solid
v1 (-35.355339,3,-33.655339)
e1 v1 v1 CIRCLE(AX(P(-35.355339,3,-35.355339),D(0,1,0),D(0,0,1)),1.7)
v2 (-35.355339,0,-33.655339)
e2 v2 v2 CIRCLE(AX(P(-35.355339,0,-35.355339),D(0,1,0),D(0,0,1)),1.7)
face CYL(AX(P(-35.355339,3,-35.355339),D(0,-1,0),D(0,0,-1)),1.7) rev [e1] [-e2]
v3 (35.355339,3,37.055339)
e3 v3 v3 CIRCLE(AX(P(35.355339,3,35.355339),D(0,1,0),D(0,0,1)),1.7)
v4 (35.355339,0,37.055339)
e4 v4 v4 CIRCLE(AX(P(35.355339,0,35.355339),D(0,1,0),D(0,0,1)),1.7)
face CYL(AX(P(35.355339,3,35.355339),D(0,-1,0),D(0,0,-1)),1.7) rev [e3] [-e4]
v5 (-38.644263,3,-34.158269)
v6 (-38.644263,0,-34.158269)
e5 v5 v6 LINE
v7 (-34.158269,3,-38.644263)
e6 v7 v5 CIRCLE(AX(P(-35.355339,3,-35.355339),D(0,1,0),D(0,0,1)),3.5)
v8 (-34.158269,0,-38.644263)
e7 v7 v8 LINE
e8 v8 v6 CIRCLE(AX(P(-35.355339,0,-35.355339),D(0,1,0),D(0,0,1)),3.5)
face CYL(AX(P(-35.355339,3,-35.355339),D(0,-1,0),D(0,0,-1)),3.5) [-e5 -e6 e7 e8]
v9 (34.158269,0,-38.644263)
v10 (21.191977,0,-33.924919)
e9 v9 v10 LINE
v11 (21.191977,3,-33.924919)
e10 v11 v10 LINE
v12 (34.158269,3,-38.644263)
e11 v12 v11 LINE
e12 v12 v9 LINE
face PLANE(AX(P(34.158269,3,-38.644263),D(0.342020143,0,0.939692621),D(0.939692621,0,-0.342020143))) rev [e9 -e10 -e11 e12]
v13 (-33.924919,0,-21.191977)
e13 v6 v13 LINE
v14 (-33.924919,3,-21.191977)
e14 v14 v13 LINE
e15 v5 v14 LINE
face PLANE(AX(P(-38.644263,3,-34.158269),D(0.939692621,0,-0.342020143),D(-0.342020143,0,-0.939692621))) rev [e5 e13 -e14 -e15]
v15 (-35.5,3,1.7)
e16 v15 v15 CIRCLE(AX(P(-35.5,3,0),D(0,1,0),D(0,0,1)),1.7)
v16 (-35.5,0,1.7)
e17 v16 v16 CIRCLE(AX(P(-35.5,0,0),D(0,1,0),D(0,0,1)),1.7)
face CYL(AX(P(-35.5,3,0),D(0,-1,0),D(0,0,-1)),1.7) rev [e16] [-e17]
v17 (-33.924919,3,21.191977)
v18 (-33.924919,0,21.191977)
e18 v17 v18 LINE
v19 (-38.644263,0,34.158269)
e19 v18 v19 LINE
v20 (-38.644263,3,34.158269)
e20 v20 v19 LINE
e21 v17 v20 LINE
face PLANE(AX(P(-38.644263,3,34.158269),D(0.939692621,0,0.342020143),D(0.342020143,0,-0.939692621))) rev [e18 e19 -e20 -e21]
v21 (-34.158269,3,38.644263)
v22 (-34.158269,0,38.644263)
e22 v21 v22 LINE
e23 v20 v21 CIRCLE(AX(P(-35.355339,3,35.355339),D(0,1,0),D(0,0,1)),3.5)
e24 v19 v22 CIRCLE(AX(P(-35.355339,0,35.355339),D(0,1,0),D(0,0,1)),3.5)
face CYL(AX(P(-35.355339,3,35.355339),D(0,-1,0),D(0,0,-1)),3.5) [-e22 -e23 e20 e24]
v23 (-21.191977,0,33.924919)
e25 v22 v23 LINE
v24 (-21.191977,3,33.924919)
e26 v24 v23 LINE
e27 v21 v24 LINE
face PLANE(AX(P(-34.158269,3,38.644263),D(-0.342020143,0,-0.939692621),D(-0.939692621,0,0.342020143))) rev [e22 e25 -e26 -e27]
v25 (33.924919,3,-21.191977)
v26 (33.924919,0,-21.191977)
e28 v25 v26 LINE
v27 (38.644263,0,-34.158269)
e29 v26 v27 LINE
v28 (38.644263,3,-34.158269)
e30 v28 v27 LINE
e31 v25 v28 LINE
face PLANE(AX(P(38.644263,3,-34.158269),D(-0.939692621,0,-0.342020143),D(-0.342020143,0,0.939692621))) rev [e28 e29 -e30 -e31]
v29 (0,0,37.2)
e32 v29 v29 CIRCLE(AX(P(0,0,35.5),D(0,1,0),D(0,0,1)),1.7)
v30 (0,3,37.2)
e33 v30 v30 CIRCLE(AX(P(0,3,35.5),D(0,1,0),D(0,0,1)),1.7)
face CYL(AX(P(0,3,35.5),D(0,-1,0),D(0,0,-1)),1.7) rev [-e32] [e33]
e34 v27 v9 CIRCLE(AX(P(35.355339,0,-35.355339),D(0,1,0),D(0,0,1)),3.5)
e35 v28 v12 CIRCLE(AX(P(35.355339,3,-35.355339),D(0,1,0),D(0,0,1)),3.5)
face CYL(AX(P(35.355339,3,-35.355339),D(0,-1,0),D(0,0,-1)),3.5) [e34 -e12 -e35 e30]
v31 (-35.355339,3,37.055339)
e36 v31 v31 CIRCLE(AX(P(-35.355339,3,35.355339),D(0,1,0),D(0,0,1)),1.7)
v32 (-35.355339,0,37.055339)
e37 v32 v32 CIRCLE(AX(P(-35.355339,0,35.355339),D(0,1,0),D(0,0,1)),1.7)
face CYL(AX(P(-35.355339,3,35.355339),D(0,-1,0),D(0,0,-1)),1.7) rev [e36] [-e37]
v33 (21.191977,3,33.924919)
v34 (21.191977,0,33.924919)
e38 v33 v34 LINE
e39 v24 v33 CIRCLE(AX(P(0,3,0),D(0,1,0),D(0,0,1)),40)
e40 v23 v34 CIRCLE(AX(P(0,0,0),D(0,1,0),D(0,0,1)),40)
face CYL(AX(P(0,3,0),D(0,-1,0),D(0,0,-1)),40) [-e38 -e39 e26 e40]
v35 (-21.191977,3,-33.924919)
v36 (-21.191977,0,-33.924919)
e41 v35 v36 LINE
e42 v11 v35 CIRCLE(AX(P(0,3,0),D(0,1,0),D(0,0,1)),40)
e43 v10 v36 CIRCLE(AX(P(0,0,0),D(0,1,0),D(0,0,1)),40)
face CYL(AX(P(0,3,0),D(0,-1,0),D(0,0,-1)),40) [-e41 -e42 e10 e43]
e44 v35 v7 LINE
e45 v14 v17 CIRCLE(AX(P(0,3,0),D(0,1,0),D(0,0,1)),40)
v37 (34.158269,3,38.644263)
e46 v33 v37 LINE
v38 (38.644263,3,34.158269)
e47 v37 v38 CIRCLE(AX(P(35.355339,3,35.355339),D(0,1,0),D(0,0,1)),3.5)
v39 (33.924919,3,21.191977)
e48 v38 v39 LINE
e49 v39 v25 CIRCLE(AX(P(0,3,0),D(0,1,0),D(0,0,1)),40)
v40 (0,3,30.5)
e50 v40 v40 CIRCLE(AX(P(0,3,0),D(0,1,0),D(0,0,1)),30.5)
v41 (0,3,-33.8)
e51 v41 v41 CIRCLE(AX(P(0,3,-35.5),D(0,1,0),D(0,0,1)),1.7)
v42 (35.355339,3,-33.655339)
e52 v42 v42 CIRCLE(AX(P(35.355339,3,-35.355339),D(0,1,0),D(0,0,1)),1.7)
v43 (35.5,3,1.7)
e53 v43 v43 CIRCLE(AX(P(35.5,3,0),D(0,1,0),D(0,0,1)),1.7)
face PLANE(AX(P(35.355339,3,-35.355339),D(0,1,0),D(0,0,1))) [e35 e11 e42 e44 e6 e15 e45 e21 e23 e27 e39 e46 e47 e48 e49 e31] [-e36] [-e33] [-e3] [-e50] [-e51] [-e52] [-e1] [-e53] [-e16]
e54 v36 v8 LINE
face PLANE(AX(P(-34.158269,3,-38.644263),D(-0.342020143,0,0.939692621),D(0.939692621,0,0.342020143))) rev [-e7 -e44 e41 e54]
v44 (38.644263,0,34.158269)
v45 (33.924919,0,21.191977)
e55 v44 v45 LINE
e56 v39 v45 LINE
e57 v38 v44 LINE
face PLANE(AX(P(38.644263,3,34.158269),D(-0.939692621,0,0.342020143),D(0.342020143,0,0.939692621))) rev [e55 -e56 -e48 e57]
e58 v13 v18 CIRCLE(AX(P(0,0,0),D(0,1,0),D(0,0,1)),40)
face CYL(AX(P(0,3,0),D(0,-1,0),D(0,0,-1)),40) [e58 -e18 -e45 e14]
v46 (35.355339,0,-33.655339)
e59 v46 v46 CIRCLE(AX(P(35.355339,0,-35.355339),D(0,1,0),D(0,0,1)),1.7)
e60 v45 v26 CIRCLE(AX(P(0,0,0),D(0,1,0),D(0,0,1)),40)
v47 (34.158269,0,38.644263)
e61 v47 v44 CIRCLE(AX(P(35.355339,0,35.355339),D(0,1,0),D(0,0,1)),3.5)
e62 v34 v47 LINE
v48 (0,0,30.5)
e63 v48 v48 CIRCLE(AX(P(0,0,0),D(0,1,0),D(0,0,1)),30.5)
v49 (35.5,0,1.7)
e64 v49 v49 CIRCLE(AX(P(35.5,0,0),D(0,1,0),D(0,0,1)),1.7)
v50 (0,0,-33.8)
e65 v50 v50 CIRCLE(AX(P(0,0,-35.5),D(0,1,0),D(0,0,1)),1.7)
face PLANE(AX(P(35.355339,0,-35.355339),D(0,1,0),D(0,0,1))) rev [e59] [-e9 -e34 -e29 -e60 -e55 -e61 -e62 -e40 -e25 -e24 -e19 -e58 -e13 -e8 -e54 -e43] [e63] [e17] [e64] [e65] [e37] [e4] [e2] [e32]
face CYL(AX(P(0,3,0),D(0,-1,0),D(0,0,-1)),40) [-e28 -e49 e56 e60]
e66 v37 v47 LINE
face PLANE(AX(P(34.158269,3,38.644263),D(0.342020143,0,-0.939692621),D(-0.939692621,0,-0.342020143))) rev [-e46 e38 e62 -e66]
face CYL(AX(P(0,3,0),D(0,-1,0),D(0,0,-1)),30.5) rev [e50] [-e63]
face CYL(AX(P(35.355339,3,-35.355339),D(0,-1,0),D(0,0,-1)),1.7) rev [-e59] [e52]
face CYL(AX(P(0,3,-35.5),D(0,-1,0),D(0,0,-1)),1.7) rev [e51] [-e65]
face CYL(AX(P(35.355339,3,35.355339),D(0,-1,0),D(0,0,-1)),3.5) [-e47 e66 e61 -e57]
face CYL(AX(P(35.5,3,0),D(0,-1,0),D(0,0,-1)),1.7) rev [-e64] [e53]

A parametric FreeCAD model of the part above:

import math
import FreeCAD as App
import Part
import Sketcher
Q = App.Units.Quantity

doc = App.newDocument("Part")
body = doc.addObject("PartDesign::Body", "Body")

sketch1 = body.newObject("Sketcher::SketchObject", "Sketch")
sketch1.AttachmentSupport = (doc.getObject("XZ_Plane"), [""])
sketch1.MapMode = "FlatFace"
sketch1.addGeometry([
    Part.LineSegment(App.Vector(34.2, -38.6, 0), App.Vector(21.2, -33.9, 0)),
    Part.ArcOfCircle(Part.Circle(App.Vector(0, 0, 0), App.Vector(0, 0, 1), 40), math.radians(-122), math.radians(-58)),
    Part.LineSegment(App.Vector(-21.2, -33.9, 0), App.Vector(-34.2, -38.6, 0)),
    Part.ArcOfCircle(Part.Circle(App.Vector(-35.4, -35.4, 0), App.Vector(0, 0, 1), 3.5), math.radians(160), math.radians(290)),
    Part.LineSegment(App.Vector(-38.6, -34.2, 0), App.Vector(-33.9, -21.2, 0)),
    Part.ArcOfCircle(Part.Circle(App.Vector(0, 0, 0), App.Vector(0, 0, 1), 40), math.radians(148), math.radians(212)),
    Part.LineSegment(App.Vector(-33.9, 21.2, 0), App.Vector(-38.6, 34.2, 0)),
    Part.ArcOfCircle(Part.Circle(App.Vector(-35.4, 35.4, 0), App.Vector(0, 0, 1), 3.5), math.radians(70), math.radians(200)),
    Part.LineSegment(App.Vector(-34.2, 38.6, 0), App.Vector(-21.2, 33.9, 0)),
    Part.ArcOfCircle(Part.Circle(App.Vector(0, 0, 0), App.Vector(0, 0, 1), 40), math.radians(58), math.radians(122)),
    Part.LineSegment(App.Vector(21.2, 33.9, 0), App.Vector(34.2, 38.6, 0)),
    Part.ArcOfCircle(Part.Circle(App.Vector(35.4, 35.4, 0), App.Vector(0, 0, 1), 3.5), math.radians(-20), math.radians(110)),
    Part.LineSegment(App.Vector(38.6, 34.2, 0), App.Vector(33.9, 21.2, 0)),
    Part.ArcOfCircle(Part.Circle(App.Vector(0, 0, 0), App.Vector(0, 0, 1), 40), math.radians(-32), math.radians(32)),
    Part.LineSegment(App.Vector(33.9, -21.2, 0), App.Vector(38.6, -34.2, 0)),
    Part.ArcOfCircle(Part.Circle(App.Vector(35.4, -35.4, 0), App.Vector(0, 0, 1), 3.5), math.radians(-110), math.radians(20)),
    Part.Circle(App.Vector(-35.4, 35.4, 0), App.Vector(0, 0, 1), 1.7),
    Part.Circle(App.Vector(0, 35.5, 0), App.Vector(0, 0, 1), 1.7),
    Part.Circle(App.Vector(35.4, 35.4, 0), App.Vector(0, 0, 1), 1.7),
    Part.Circle(App.Vector(-35.5, 0, 0), App.Vector(0, 0, 1), 1.7),
    Part.Circle(App.Vector(-35.4, -35.4, 0), App.Vector(0, 0, 1), 1.7),
    Part.Circle(App.Vector(0, 0, 0), App.Vector(0, 0, 1), 30.5),
    Part.Circle(App.Vector(35.5, 0, 0), App.Vector(0, 0, 1), 1.7),
    Part.Circle(App.Vector(0, -35.5, 0), App.Vector(0, 0, 1), 1.7),
    Part.Circle(App.Vector(35.4, -35.4, 0), App.Vector(0, 0, 1), 1.7),
], False)
sketch1.addConstraint([
    Sketcher.Constraint("Coincident", 0, 2, 1, 2),
    Sketcher.Constraint("Coincident", 1, 1, 2, 1),
    Sketcher.Constraint("Tangent", 2, 2, 3, 2),
    Sketcher.Constraint("Tangent", 3, 1, 4, 1),
    Sketcher.Constraint("Coincident", 4, 2, 5, 2),
    Sketcher.Constraint("Coincident", 5, 1, 6, 1),
    Sketcher.Constraint("Tangent", 6, 2, 7, 2),
    Sketcher.Constraint("Tangent", 7, 1, 8, 1),
    Sketcher.Constraint("Coincident", 8, 2, 9, 2),
    Sketcher.Constraint("Coincident", 9, 1, 10, 1),
    Sketcher.Constraint("Tangent", 10, 2, 11, 2),
    Sketcher.Constraint("Tangent", 11, 1, 12, 1),
    Sketcher.Constraint("Coincident", 12, 2, 13, 2),
    Sketcher.Constraint("Coincident", 13, 1, 14, 1),
    Sketcher.Constraint("Tangent", 14, 2, 15, 2),
    Sketcher.Constraint("Tangent", 15, 1, 0, 1),
    Sketcher.Constraint("Coincident", 1, 3, -1, 1),
    Sketcher.Constraint("Coincident", 5, 3, -1, 1),
    Sketcher.Constraint("Coincident", 9, 3, -1, 1),
    Sketcher.Constraint("Coincident", 13, 3, -1, 1),
    Sketcher.Constraint("Coincident", 21, 3, -1, 1),
    Sketcher.Constraint("Coincident", 16, 3, 7, 3),
    Sketcher.Constraint("Coincident", 18, 3, 11, 3),
    Sketcher.Constraint("Coincident", 20, 3, 3, 3),
    Sketcher.Constraint("Coincident", 24, 3, 15, 3),
    Sketcher.Constraint("Equal", 1, 5),
    Sketcher.Constraint("Equal", 3, 7),
    Sketcher.Constraint("Equal", 5, 9),
    Sketcher.Constraint("Equal", 7, 11),
    Sketcher.Constraint("Equal", 9, 13),
    Sketcher.Constraint("Equal", 11, 15),
    Sketcher.Constraint("Equal", 16, 17),
    Sketcher.Constraint("Equal", 17, 18),
    Sketcher.Constraint("Equal", 18, 19),
    Sketcher.Constraint("Equal", 19, 20),
    Sketcher.Constraint("Equal", 20, 22),
    Sketcher.Constraint("Equal", 22, 23),
    Sketcher.Constraint("Equal", 23, 24),
    Sketcher.Constraint("Symmetric", 3, 3, 11, 3, -1, 1),
    Sketcher.Constraint("Symmetric", 7, 3, 15, 3, -1, 1),
    Sketcher.Constraint("Symmetric", 19, 3, 22, 3, -1, 1),
    Sketcher.Constraint("Symmetric", 17, 3, 23, 3, -1, 1),
    Sketcher.Constraint("Symmetric", 7, 3, 11, 3, -2),
    Sketcher.Constraint("PointOnObject", 17, 3, -2),
    Sketcher.Constraint("PointOnObject", 19, 3, -1),
    Sketcher.Constraint("Perpendicular", 0, 4),
    Sketcher.Constraint("Perpendicular", 2, 6),
    Sketcher.Constraint("Perpendicular", 4, 8),
    Sketcher.Constraint("Perpendicular", 6, 10),
    Sketcher.Constraint("Perpendicular", 8, 12),
    Sketcher.Constraint("Perpendicular", 10, 14),
    Sketcher.Constraint("Horizontal", 0, 2, 1, 1),
    Sketcher.Constraint("Equal", 2, 4),
    Sketcher.Constraint("Diameter", 21, Q("61 mm")),
    Sketcher.Constraint("Radius", 1, Q("40 mm")),
    Sketcher.Constraint("Diameter", 16, Q("3.4 mm")),
    Sketcher.Constraint("Radius", 3, Q("3.5 mm")),
    Sketcher.Constraint("Angle", 0, Q("160 deg")),
    Sketcher.Constraint("DistanceY", -1, 1, 17, 3, Q("35.5 mm")),
    Sketcher.Constraint("DistanceX", 19, 3, -1, 1, Q("35.5 mm")),
    Sketcher.Constraint("Distance", 0, Q("13.79844 mm")),
])
pad1 = body.newObject("PartDesign::Pad", "Pad")
pad1.Profile = sketch1
pad1.Length = 3
pad1.Reversed = True

doc.recompute()
